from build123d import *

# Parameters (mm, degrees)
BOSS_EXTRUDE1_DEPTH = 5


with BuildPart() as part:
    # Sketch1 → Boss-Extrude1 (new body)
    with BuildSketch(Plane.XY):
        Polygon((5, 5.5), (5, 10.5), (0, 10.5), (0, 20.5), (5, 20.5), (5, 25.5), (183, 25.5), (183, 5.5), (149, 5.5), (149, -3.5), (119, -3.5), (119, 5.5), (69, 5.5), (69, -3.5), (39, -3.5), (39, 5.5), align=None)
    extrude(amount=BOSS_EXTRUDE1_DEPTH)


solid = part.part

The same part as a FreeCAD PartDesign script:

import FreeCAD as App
import Part
import Sketcher
Q = App.Units.Quantity

doc = App.newDocument("Part")
body = doc.addObject("PartDesign::Body", "Body")

# Sketch on XY plane
sketch1 = body.newObject("Sketcher::SketchObject", "Sketch")
sketch1.AttachmentSupport = (doc.getObject("XY_Plane"), [""])
sketch1.MapMode = "FlatFace"
sketch1.addGeometry([
    Part.LineSegment(App.Vector(5, 10, 0), App.Vector(5, 6, 0)),  # 0
    Part.LineSegment(App.Vector(5, 6, 0), App.Vector(39, 6, 0)),  # 1
    Part.LineSegment(App.Vector(39, 6, 0), App.Vector(39, -4, 0)),  # 2
    Part.LineSegment(App.Vector(39, -4, 0), App.Vector(69, -4, 0)),  # 3
    Part.LineSegment(App.Vector(69, -4, 0), App.Vector(69, 6, 0)),  # 4
    Part.LineSegment(App.Vector(69, 6, 0), App.Vector(119, 6, 0)),  # 5
    Part.LineSegment(App.Vector(119, 6, 0), App.Vector(119, -4, 0)),  # 6
    Part.LineSegment(App.Vector(119, -4, 0), App.Vector(149, -4, 0)),  # 7
    Part.LineSegment(App.Vector(149, -4, 0), App.Vector(149, 6, 0)),  # 8
    Part.LineSegment(App.Vector(149, 6, 0), App.Vector(183, 6, 0)),  # 9
    Part.LineSegment(App.Vector(183, 6, 0), App.Vector(183, 26, 0)),  # 10
    Part.LineSegment(App.Vector(183, 26, 0), App.Vector(5, 26, 0)),  # 11
    Part.LineSegment(App.Vector(5, 26, 0), App.Vector(5, 20, 0)),  # 12
    Part.LineSegment(App.Vector(5, 20, 0), App.Vector(0, 20, 0)),  # 13
    Part.LineSegment(App.Vector(0, 20, 0), App.Vector(0, 10, 0)),  # 14
    Part.LineSegment(App.Vector(0, 10, 0), App.Vector(5, 10, 0)),  # 15
], False)
sketch1.addConstraint([
    Sketcher.Constraint("Coincident", 0, 2, 1, 1),
    Sketcher.Constraint("Coincident", 1, 2, 2, 1),
    Sketcher.Constraint("Coincident", 2, 2, 3, 1),
    Sketcher.Constraint("Coincident", 3, 2, 4, 1),
    Sketcher.Constraint("Coincident", 4, 2, 5, 1),
    Sketcher.Constraint("Coincident", 5, 2, 6, 1),
    Sketcher.Constraint("Coincident", 6, 2, 7, 1),
    Sketcher.Constraint("Coincident", 7, 2, 8, 1),
    Sketcher.Constraint("Coincident", 8, 2, 9, 1),
    Sketcher.Constraint("Coincident", 9, 2, 10, 1),
    Sketcher.Constraint("Coincident", 10, 2, 11, 1),
    Sketcher.Constraint("Coincident", 11, 2, 12, 1),
    Sketcher.Constraint("Coincident", 12, 2, 13, 1),
    Sketcher.Constraint("Coincident", 13, 2, 14, 1),
    Sketcher.Constraint("Coincident", 14, 2, 15, 1),
    Sketcher.Constraint("Coincident", 15, 2, 0, 1),
    Sketcher.Constraint("Vertical", 0),
    Sketcher.Constraint("Horizontal", 1),
    Sketcher.Constraint("Vertical", 2),
    Sketcher.Constraint("Horizontal", 3),
    Sketcher.Constraint("Vertical", 4),
    Sketcher.Constraint("Horizontal", 5),
    Sketcher.Constraint("Vertical", 6),
    Sketcher.Constraint("Horizontal", 7),
    Sketcher.Constraint("Vertical", 8),
    Sketcher.Constraint("Horizontal", 9),
    Sketcher.Constraint("Vertical", 10),
    Sketcher.Constraint("Horizontal", 11),
    Sketcher.Constraint("Vertical", 12),
    Sketcher.Constraint("Horizontal", 13),
    Sketcher.Constraint("Vertical", 14),
    Sketcher.Constraint("Horizontal", 15),
    Sketcher.Constraint("PointOnObject", 13, 2, -2),
    Sketcher.Constraint("Horizontal", 1, 2, 4, 2),
    Sketcher.Constraint("Horizontal", 3, 2, 6, 2),
    Sketcher.Constraint("Horizontal", 5, 2, 8, 2),
    Sketcher.Constraint("Vertical", 0, 2, 11, 2),
    Sketcher.Constraint("Equal", 3, 7),
    Sketcher.Constraint("Equal", 1, 9),
    Sketcher.Constraint("Equal", 15, 0),
    Sketcher.Constraint("Equal", 0, 12),
    Sketcher.Constraint("DistanceX", 1, 1, 1, 2, Q("34 mm")),
    Sketcher.Constraint("DistanceX", 3, 1, 3, 2, Q("30 mm")),
    Sketcher.Constraint("DistanceX", 5, 1, 5, 2, Q("50 mm")),
    Sketcher.Constraint("DistanceX", 13, 2, 13, 1, Q("5 mm")),
    Sketcher.Constraint("DistanceY", 2, 2, 2, 1, Q("9 mm")),
    Sketcher.Constraint("DistanceY", 10, 1, 10, 2, Q("20 mm")),
    Sketcher.Constraint("DistanceY", -1, 1, 0, 2, Q("5.5 mm")),
])
pad1 = body.newObject("PartDesign::Pad", "Pad")
pad1.Profile = sketch1
pad1.Length = 5

doc.recompute()
